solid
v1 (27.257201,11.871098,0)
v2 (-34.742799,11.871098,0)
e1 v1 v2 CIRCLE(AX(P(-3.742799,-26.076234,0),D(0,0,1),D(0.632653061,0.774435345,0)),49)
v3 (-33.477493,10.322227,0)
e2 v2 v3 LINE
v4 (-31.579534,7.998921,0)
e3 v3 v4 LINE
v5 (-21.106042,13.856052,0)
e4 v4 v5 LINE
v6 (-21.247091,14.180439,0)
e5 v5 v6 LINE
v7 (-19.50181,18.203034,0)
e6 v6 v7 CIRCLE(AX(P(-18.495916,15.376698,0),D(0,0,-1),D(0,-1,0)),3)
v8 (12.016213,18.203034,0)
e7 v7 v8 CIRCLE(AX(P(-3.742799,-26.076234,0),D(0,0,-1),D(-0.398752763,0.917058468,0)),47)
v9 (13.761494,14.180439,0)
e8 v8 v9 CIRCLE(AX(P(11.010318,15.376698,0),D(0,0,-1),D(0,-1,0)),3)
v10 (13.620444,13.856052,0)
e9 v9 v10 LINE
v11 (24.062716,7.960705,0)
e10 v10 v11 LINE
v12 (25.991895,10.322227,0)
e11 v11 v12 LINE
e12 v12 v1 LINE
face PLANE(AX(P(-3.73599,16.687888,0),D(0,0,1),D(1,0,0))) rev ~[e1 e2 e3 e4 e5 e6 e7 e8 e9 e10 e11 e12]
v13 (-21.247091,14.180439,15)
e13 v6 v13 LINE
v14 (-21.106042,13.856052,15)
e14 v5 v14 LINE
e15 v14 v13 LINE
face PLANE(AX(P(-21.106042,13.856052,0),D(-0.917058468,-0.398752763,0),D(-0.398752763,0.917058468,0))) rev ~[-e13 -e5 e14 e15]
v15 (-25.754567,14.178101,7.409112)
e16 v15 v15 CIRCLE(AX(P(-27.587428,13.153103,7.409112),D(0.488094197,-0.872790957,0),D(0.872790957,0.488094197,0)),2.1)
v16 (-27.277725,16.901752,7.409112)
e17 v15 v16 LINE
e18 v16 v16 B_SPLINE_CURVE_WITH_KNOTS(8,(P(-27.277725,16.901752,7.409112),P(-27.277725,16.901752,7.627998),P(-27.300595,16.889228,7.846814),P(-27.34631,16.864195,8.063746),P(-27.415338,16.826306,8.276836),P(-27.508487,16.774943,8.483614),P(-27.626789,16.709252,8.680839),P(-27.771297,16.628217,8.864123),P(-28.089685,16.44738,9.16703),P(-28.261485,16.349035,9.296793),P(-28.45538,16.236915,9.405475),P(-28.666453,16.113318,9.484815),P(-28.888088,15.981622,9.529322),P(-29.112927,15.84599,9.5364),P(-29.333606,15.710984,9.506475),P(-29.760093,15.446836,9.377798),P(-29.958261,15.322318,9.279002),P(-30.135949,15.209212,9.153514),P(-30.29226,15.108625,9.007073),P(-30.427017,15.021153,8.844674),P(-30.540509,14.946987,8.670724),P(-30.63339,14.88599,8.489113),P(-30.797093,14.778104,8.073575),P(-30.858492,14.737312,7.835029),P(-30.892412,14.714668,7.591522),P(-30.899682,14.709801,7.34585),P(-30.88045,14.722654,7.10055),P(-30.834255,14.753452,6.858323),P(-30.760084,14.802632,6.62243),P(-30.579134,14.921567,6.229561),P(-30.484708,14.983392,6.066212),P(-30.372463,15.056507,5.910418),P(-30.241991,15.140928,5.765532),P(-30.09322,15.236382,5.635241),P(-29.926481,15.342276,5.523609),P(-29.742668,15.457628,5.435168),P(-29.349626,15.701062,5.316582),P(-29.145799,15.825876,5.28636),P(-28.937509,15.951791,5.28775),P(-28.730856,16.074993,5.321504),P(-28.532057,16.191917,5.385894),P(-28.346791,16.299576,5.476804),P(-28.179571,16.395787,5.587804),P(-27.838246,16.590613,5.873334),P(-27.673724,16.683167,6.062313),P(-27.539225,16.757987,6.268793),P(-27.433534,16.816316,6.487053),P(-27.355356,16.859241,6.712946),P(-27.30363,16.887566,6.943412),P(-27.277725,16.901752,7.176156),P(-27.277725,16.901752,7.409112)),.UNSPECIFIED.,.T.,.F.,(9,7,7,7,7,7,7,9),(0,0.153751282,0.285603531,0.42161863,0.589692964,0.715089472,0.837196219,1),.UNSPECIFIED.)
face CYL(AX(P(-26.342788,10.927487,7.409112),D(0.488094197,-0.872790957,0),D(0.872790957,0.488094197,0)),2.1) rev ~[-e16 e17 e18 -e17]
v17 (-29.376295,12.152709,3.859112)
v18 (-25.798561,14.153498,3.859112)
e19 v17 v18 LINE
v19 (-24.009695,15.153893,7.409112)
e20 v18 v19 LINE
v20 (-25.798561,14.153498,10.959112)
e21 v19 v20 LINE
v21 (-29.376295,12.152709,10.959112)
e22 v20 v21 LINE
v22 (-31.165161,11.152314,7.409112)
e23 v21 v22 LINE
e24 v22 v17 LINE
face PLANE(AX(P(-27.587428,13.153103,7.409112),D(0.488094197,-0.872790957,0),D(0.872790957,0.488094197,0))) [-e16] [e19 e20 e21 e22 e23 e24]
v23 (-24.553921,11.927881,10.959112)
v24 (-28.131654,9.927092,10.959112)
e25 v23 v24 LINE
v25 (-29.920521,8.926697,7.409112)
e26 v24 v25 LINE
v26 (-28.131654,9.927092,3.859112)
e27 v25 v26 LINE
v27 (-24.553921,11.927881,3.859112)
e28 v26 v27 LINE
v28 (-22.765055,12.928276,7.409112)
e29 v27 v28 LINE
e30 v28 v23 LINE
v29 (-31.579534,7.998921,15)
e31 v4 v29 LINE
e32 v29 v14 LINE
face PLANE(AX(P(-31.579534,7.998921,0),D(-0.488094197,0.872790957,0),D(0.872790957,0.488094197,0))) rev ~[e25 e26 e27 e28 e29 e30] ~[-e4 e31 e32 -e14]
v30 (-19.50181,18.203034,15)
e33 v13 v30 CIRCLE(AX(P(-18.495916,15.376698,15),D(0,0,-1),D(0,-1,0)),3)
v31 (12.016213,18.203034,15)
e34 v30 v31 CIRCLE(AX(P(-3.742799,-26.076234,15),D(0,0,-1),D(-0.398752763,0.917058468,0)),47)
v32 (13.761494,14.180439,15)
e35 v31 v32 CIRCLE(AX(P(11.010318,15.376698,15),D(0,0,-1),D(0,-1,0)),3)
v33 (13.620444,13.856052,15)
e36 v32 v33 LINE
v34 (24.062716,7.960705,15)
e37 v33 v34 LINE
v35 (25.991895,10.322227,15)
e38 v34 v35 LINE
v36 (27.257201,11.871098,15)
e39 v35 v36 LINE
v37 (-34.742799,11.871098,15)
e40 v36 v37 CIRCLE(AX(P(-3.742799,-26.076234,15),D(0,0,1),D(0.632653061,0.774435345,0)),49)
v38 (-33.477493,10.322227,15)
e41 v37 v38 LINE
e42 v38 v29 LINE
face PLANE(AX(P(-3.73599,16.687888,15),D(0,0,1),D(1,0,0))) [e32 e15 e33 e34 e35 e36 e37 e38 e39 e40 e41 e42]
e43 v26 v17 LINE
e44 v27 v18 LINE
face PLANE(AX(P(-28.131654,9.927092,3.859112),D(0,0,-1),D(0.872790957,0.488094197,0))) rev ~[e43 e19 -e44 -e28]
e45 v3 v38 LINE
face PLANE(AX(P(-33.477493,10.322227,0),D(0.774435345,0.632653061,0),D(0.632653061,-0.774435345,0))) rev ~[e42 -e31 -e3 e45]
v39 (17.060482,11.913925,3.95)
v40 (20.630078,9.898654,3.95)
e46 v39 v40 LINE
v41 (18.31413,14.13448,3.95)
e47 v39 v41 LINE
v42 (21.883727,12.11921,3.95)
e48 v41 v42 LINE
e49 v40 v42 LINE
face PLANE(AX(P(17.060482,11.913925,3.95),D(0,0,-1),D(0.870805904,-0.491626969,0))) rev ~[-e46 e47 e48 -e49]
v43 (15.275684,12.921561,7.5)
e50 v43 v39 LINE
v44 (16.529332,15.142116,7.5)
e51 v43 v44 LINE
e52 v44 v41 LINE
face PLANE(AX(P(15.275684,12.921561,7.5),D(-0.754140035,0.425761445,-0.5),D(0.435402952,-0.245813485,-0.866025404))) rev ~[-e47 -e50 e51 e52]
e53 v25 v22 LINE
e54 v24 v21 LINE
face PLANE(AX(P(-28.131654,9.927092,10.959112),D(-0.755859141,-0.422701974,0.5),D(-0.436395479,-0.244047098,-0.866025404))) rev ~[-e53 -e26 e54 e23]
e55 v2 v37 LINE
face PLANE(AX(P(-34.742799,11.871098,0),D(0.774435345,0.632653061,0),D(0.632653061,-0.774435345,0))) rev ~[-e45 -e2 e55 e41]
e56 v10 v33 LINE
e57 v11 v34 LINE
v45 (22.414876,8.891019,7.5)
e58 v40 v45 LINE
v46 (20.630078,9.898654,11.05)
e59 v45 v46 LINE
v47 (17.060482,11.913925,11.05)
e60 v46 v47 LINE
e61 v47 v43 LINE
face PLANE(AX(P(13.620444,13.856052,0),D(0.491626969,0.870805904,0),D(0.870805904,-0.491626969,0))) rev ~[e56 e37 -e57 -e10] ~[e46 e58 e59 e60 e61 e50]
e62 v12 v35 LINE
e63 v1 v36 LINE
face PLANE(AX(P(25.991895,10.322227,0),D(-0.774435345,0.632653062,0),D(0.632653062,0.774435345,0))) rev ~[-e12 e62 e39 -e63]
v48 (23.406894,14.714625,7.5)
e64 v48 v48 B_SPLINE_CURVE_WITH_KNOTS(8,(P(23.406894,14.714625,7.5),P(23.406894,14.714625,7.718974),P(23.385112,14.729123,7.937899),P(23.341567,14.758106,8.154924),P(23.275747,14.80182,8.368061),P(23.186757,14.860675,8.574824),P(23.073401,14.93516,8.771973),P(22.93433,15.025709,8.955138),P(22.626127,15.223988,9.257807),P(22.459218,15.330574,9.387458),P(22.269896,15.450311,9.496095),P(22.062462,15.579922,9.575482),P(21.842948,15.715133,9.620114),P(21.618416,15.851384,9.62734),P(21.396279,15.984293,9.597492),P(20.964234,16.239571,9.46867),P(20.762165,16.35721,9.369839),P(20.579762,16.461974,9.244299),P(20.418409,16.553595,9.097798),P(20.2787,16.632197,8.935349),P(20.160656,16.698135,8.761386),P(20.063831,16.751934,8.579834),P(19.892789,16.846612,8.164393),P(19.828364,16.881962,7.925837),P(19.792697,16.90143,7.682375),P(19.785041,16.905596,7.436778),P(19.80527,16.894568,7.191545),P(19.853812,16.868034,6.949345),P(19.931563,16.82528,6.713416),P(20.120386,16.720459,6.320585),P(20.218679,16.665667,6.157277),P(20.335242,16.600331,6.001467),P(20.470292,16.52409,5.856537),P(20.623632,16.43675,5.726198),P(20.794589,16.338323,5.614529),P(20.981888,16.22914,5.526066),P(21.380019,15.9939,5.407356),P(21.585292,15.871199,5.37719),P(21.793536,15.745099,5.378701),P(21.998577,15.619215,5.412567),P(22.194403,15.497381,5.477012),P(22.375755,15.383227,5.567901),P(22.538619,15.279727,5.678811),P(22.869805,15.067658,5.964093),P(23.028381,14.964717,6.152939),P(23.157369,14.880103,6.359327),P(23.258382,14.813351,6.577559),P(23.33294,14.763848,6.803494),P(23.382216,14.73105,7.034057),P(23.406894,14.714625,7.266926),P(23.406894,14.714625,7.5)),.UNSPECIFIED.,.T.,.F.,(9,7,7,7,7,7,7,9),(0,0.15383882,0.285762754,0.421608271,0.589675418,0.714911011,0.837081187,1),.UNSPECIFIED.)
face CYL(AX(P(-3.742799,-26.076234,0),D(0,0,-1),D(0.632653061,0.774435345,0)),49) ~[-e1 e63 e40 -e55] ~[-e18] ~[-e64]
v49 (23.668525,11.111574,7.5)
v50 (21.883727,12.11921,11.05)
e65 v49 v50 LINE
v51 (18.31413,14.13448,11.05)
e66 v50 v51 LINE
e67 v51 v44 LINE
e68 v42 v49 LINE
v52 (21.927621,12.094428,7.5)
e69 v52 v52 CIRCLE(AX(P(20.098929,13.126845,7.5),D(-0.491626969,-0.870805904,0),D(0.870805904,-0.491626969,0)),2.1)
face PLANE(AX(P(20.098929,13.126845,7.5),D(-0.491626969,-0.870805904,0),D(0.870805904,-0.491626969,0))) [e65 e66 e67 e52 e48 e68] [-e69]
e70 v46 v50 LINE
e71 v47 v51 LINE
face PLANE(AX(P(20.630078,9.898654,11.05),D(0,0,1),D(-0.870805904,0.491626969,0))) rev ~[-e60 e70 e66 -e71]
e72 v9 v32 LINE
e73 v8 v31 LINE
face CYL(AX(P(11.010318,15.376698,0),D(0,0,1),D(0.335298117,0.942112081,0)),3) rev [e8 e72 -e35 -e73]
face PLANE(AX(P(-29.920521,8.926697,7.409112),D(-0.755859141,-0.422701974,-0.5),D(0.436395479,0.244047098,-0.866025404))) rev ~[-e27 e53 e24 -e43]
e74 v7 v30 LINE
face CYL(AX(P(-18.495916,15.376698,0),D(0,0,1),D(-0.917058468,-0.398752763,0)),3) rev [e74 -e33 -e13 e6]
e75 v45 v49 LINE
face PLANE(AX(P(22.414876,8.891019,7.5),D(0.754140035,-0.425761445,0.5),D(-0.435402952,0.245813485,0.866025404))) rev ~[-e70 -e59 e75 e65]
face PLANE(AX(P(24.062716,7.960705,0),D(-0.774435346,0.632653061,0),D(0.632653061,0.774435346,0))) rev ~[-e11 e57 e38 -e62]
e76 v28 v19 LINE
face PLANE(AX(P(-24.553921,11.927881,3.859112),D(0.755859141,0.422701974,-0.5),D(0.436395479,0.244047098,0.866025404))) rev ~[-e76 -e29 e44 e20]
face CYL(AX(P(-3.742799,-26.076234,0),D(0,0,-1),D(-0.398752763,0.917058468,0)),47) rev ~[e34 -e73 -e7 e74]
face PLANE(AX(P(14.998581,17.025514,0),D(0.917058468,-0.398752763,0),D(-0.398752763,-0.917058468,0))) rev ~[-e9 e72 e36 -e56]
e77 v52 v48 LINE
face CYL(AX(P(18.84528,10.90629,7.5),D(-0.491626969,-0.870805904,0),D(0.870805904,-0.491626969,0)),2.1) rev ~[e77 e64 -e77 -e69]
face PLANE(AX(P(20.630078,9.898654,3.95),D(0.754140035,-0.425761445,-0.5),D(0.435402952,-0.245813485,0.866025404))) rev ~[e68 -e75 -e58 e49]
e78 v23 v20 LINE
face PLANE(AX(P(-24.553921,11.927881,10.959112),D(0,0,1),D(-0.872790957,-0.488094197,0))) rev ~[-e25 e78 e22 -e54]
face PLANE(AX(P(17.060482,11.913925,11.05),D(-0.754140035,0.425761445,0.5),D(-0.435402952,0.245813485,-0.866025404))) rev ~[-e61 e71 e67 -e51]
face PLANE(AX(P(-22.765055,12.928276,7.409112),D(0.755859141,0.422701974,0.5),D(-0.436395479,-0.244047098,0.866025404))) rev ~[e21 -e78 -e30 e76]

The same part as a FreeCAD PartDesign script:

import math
import FreeCAD as App
import Part
import Sketcher
Q = App.Units.Quantity


def edges_at(feature, points):
    """Names of the edges that pass closest to the given points."""
    edges = feature.Shape.Edges
    near = lambda p: min(range(len(edges)), key=lambda i: edges[i].distToShape(Part.Vertex(*p))[0])
    return sorted({f"Edge{near(p) + 1}" for p in points})

doc = App.newDocument("Part")
body = doc.addObject("PartDesign::Body", "Body")

# Sketch on XY plane
sketch1 = doc.addObject("Sketcher::SketchObject", "Sketch")
body.addObject(sketch1)
sketch1.AttachmentSupport = (doc.XY_Plane, [""])
sketch1.MapMode = "FlatFace"
sketch1.addGeometry(Part.LineSegment(App.Vector(-34.7, 11.9, 0), App.Vector(-33.5, 10.3, 0)), False)
sketch1.addGeometry(Part.LineSegment(App.Vector(-33.5, 10.3, 0), App.Vector(-31.6, 8, 0)), False)
sketch1.addGeometry(Part.LineSegment(App.Vector(-31.6, 8, 0), App.Vector(-21.1, 13.9, 0)), False)
sketch1.addGeometry(Part.LineSegment(App.Vector(-21.1, 13.9, 0), App.Vector(-22.5, 17, 0)), False)
sketch1.addGeometry(Part.ArcOfCircle(Part.Circle(App.Vector(-3.7, -26.1, 0), App.Vector(0, 0, 1), 47), math.radians(66), math.radians(114)), False)
sketch1.addGeometry(Part.LineSegment(App.Vector(15, 17, 0), App.Vector(13.6, 13.9, 0)), False)
sketch1.addGeometry(Part.LineSegment(App.Vector(13.6, 13.9, 0), App.Vector(24.1, 8, 0)), False)
sketch1.addGeometry(Part.LineSegment(App.Vector(24.1, 8, 0), App.Vector(26, 10.3, 0)), False)
sketch1.addGeometry(Part.LineSegment(App.Vector(26, 10.3, 0), App.Vector(27.3, 11.9, 0)), False)
sketch1.addGeometry(Part.ArcOfCircle(Part.Circle(App.Vector(-3.7, -26.1, 0), App.Vector(0, 0, 1), 49), math.radians(51), math.radians(129)), False)
sketch1.addConstraint(Sketcher.Constraint("Coincident", 0, 2, 1, 1))
sketch1.addConstraint(Sketcher.Constraint("Coincident", 1, 2, 2, 1))
sketch1.addConstraint(Sketcher.Constraint("Coincident", 2, 2, 3, 1))
sketch1.addConstraint(Sketcher.Constraint("Coincident", 3, 2, 4, 2))
sketch1.addConstraint(Sketcher.Constraint("Coincident", 4, 1, 5, 1))
sketch1.addConstraint(Sketcher.Constraint("Coincident", 5, 2, 6, 1))
sketch1.addConstraint(Sketcher.Constraint("Coincident", 6, 2, 7, 1))
sketch1.addConstraint(Sketcher.Constraint("Coincident", 7, 2, 8, 1))
sketch1.addConstraint(Sketcher.Constraint("Coincident", 8, 2, 9, 1))
sketch1.addConstraint(Sketcher.Constraint("Coincident", 9, 2, 0, 1))
sketch1.addConstraint(Sketcher.Constraint("Coincident", 9, 3, 4, 3))
sketch1.addConstraint(Sketcher.Constraint("Parallel", 0, 1))
sketch1.addConstraint(Sketcher.Constraint("Parallel", 7, 8))
sketch1.addConstraint(Sketcher.Constraint("Horizontal", 3, 2, 4, 1))
sketch1.addConstraint(Sketcher.Constraint("Horizontal", 2, 2, 5, 2))
sketch1.addConstraint(Sketcher.Constraint("Horizontal", 0, 2, 7, 2))
sketch1.addConstraint(Sketcher.Constraint("Horizontal", 8, 2, 9, 2))
sketch1.addConstraint(Sketcher.Constraint("Equal", 3, 5))
sketch1.addConstraint(Sketcher.Constraint("Equal", 0, 8))
sketch1.addConstraint(Sketcher.Constraint("Radius", 4, 47.0))
sketch1.addConstraint(Sketcher.Constraint("Radius", 9, 49.0))
sketch1.addConstraint(Sketcher.Constraint("Distance", 0, 2.0))
sketch1.addConstraint(Sketcher.Constraint("Distance", 1, 3.0))
sketch1.addConstraint(Sketcher.Constraint("Distance", 2, 12.0))
sketch1.addConstraint(Sketcher.Constraint("DistanceX", 4, 3, -1, 1, 3.742799))
sketch1.addConstraint(Sketcher.Constraint("DistanceX", -1, 1, 8, 2, 27.257201))
sketch1.addConstraint(Sketcher.Constraint("DistanceY", -1, 1, 8, 2, 11.871098))
sketch1.addConstraint(Sketcher.Constraint("Distance", 3, 3.456118))
sketch1.addConstraint(Sketcher.Constraint("DistanceY", -1, 1, 1, 2, 7.998921))
sketch1.addConstraint(Sketcher.Constraint("DistanceX", 3, 2, -1, 1, 22.484179))
sketch1.addConstraint(Sketcher.Constraint("DistanceX", 5, 2, 6, 2, 10.442272))
pad1 = doc.addObject("PartDesign::Pad", "Pad")
body.addObject(pad1)
pad1.Profile = sketch1
pad1.Length = 15
doc.recompute()

fillet = doc.addObject("PartDesign::Fillet", "Fillet")
body.addObject(fillet)
fillet.Base = (pad1, edges_at(pad1, [(14.999, 17.026, 7.5), (-22.484, 17.026, 7.5)]))
fillet.Radius = 3

# Sketch on an angled plane
sketch2 = doc.addObject("Sketcher::SketchObject", "Sketch001")
body.addObject(sketch2)
sketch2.Placement = App.Placement(App.Vector(9.223959, 16.338156, 0), App.Rotation(App.Vector(0.870805904, -0.491626969, 0), App.Vector(0, 0, 0.999999999), App.Vector(-0.491626969, -0.870805904, 0), "ZXY"))
sketch2.addGeometry(Part.Circle(App.Vector(11, 7.5, 0), App.Vector(0, 0, 1), 2.1), False)
sketch2.addConstraint(Sketcher.Constraint("Diameter", 0, 4.2))
sketch2.addConstraint(Sketcher.Constraint("DistanceY", -1, 1, 0, 3, 7.5))
sketch2.addConstraint(Sketcher.Constraint("DistanceX", -1, 1, 0, 3, 11.048755))
pocket1 = doc.addObject("PartDesign::Pocket", "Pocket")
body.addObject(pocket1)
pocket1.Profile = sketch2
pocket1.Length = 13.55

# Sketch on an angled plane
sketch3 = doc.addObject("Sketcher::SketchObject", "Sketch002")
body.addObject(sketch3)
sketch3.Placement = App.Placement(App.Vector(-10.930954, 19.546305, 0), App.Rotation(App.Vector(0.872790957, 0.488094197, 0), App.Vector(0, 0, 1), App.Vector(0.488094197, -0.872790957, 0), "ZXY"))
sketch3.addGeometry(Part.Circle(App.Vector(-17.7, 7.4, 0), App.Vector(0, 0, 1), 2.1), False)
sketch3.addConstraint(Sketcher.Constraint("Diameter", 0, 4.2))
sketch3.addConstraint(Sketcher.Constraint("DistanceY", -1, 1, 0, 3, 7.409112))
sketch3.addConstraint(Sketcher.Constraint("DistanceX", 0, 3, -1, 1, 17.658104))
pocket2 = doc.addObject("PartDesign::Pocket", "Pocket001")
body.addObject(pocket2)
pocket2.Profile = sketch3
pocket2.Length = 13.55

# Sketch on an angled plane
sketch4 = doc.addObject("Sketcher::SketchObject", "Sketch003")
body.addObject(sketch4)
sketch4.Placement = App.Placement(App.Vector(-10.930954, 19.546305, 0), App.Rotation(App.Vector(0.872790957, 0.488094197, 0), App.Vector(0, 0, 1), App.Vector(0.488094197, -0.872790957, 0), "ZXY"))
sketch4.addGeometry(Part.LineSegment(App.Vector(-19.7, 3.9, 0), App.Vector(-15.6, 3.9, 0)), False)
sketch4.addGeometry(Part.LineSegment(App.Vector(-15.6, 3.9, 0), App.Vector(-13.6, 7.4, 0)), False)
sketch4.addGeometry(Part.LineSegment(App.Vector(-13.6, 7.4, 0), App.Vector(-15.6, 11, 0)), False)
sketch4.addGeometry(Part.LineSegment(App.Vector(-15.6, 11, 0), App.Vector(-19.7, 11, 0)), False)
sketch4.addGeometry(Part.LineSegment(App.Vector(-19.7, 11, 0), App.Vector(-21.8, 7.4, 0)), False)
sketch4.addGeometry(Part.LineSegment(App.Vector(-21.8, 7.4, 0), App.Vector(-19.7, 3.9, 0)), False)
sketch4.addConstraint(Sketcher.Constraint("Coincident", 0, 2, 1, 1))
sketch4.addConstraint(Sketcher.Constraint("Coincident", 1, 2, 2, 1))
sketch4.addConstraint(Sketcher.Constraint("Coincident", 2, 2, 3, 1))
sketch4.addConstraint(Sketcher.Constraint("Coincident", 3, 2, 4, 1))
sketch4.addConstraint(Sketcher.Constraint("Coincident", 4, 2, 5, 1))
sketch4.addConstraint(Sketcher.Constraint("Coincident", 5, 2, 0, 1))
sketch4.addConstraint(Sketcher.Constraint("Horizontal", 0))
sketch4.addConstraint(Sketcher.Constraint("Horizontal", 3))
sketch4.addConstraint(Sketcher.Constraint("Parallel", 1, 4))
sketch4.addConstraint(Sketcher.Constraint("Parallel", 2, 5))
sketch4.addConstraint(Sketcher.Constraint("Horizontal", 1, 2, 4, 2))
sketch4.addConstraint(Sketcher.Constraint("Vertical", 0, 2, 2, 2))
sketch4.addConstraint(Sketcher.Constraint("Vertical", 3, 2, 5, 2))
sketch4.addConstraint(Sketcher.Constraint("Angle", 1, Q("60 deg")))
sketch4.addConstraint(Sketcher.Constraint("DistanceY", 0, 2, 2, 2, 7.1))
sketch4.addConstraint(Sketcher.Constraint("DistanceX", 0, 1, 0, 2, 4.099187))
sketch4.addConstraint(Sketcher.Constraint("DistanceX", 0, 2, -1, 1, 15.608511))
sketch4.addConstraint(Sketcher.Constraint("DistanceY", -1, 1, 0, 2, 3.859112))
pocket3 = doc.addObject("PartDesign::Pocket", "Pocket002")
body.addObject(pocket3)
pocket3.Profile = sketch4
pocket3.Length = 2.55

# Sketch on an angled plane
sketch5 = doc.addObject("Sketcher::SketchObject", "Sketch004")
body.addObject(sketch5)
sketch5.Placement = App.Placement(App.Vector(9.223959, 16.338156, 0), App.Rotation(App.Vector(0.870805904, -0.491626969, 0), App.Vector(0, 0, 0.999999999), App.Vector(-0.491626969, -0.870805904, 0), "ZXY"))
sketch5.addGeometry(Part.LineSegment(App.Vector(9, 3.9, 0), App.Vector(13.1, 3.9, 0)), False)
sketch5.addGeometry(Part.LineSegment(App.Vector(13.1, 3.9, 0), App.Vector(15.1, 7.5, 0)), False)
sketch5.addGeometry(Part.LineSegment(App.Vector(15.1, 7.5, 0), App.Vector(13.1, 11, 0)), False)
sketch5.addGeometry(Part.LineSegment(App.Vector(13.1, 11, 0), App.Vector(9, 11, 0)), False)
sketch5.addGeometry(Part.LineSegment(App.Vector(9, 11, 0), App.Vector(6.9, 7.5, 0)), False)
sketch5.addGeometry(Part.LineSegment(App.Vector(6.9, 7.5, 0), App.Vector(9, 3.9, 0)), False)
sketch5.addConstraint(Sketcher.Constraint("Coincident", 0, 2, 1, 1))
sketch5.addConstraint(Sketcher.Constraint("Coincident", 1, 2, 2, 1))
sketch5.addConstraint(Sketcher.Constraint("Coincident", 2, 2, 3, 1))
sketch5.addConstraint(Sketcher.Constraint("Coincident", 3, 2, 4, 1))
sketch5.addConstraint(Sketcher.Constraint("Coincident", 4, 2, 5, 1))
sketch5.addConstraint(Sketcher.Constraint("Coincident", 5, 2, 0, 1))
sketch5.addConstraint(Sketcher.Constraint("Horizontal", 0))
sketch5.addConstraint(Sketcher.Constraint("Horizontal", 3))
sketch5.addConstraint(Sketcher.Constraint("Parallel", 1, 4))
sketch5.addConstraint(Sketcher.Constraint("Parallel", 2, 5))
sketch5.addConstraint(Sketcher.Constraint("Horizontal", 1, 2, 4, 2))
sketch5.addConstraint(Sketcher.Constraint("Vertical", 0, 2, 2, 2))
sketch5.addConstraint(Sketcher.Constraint("Vertical", 3, 2, 5, 2))
sketch5.addConstraint(Sketcher.Constraint("Angle", 1, Q("60 deg")))
sketch5.addConstraint(Sketcher.Constraint("DistanceY", -1, 1, 1, 2, 7.5))
sketch5.addConstraint(Sketcher.Constraint("DistanceY", 0, 2, 2, 2, 7.1))
sketch5.addConstraint(Sketcher.Constraint("DistanceX", 0, 1, 0, 2, 4.099187))
sketch5.addConstraint(Sketcher.Constraint("DistanceX", -1, 1, 0, 2, 13.098348))
pocket4 = doc.addObject("PartDesign::Pocket", "Pocket003")
body.addObject(pocket4)
pocket4.Profile = sketch5
pocket4.Length = 2.55

doc.recompute()
